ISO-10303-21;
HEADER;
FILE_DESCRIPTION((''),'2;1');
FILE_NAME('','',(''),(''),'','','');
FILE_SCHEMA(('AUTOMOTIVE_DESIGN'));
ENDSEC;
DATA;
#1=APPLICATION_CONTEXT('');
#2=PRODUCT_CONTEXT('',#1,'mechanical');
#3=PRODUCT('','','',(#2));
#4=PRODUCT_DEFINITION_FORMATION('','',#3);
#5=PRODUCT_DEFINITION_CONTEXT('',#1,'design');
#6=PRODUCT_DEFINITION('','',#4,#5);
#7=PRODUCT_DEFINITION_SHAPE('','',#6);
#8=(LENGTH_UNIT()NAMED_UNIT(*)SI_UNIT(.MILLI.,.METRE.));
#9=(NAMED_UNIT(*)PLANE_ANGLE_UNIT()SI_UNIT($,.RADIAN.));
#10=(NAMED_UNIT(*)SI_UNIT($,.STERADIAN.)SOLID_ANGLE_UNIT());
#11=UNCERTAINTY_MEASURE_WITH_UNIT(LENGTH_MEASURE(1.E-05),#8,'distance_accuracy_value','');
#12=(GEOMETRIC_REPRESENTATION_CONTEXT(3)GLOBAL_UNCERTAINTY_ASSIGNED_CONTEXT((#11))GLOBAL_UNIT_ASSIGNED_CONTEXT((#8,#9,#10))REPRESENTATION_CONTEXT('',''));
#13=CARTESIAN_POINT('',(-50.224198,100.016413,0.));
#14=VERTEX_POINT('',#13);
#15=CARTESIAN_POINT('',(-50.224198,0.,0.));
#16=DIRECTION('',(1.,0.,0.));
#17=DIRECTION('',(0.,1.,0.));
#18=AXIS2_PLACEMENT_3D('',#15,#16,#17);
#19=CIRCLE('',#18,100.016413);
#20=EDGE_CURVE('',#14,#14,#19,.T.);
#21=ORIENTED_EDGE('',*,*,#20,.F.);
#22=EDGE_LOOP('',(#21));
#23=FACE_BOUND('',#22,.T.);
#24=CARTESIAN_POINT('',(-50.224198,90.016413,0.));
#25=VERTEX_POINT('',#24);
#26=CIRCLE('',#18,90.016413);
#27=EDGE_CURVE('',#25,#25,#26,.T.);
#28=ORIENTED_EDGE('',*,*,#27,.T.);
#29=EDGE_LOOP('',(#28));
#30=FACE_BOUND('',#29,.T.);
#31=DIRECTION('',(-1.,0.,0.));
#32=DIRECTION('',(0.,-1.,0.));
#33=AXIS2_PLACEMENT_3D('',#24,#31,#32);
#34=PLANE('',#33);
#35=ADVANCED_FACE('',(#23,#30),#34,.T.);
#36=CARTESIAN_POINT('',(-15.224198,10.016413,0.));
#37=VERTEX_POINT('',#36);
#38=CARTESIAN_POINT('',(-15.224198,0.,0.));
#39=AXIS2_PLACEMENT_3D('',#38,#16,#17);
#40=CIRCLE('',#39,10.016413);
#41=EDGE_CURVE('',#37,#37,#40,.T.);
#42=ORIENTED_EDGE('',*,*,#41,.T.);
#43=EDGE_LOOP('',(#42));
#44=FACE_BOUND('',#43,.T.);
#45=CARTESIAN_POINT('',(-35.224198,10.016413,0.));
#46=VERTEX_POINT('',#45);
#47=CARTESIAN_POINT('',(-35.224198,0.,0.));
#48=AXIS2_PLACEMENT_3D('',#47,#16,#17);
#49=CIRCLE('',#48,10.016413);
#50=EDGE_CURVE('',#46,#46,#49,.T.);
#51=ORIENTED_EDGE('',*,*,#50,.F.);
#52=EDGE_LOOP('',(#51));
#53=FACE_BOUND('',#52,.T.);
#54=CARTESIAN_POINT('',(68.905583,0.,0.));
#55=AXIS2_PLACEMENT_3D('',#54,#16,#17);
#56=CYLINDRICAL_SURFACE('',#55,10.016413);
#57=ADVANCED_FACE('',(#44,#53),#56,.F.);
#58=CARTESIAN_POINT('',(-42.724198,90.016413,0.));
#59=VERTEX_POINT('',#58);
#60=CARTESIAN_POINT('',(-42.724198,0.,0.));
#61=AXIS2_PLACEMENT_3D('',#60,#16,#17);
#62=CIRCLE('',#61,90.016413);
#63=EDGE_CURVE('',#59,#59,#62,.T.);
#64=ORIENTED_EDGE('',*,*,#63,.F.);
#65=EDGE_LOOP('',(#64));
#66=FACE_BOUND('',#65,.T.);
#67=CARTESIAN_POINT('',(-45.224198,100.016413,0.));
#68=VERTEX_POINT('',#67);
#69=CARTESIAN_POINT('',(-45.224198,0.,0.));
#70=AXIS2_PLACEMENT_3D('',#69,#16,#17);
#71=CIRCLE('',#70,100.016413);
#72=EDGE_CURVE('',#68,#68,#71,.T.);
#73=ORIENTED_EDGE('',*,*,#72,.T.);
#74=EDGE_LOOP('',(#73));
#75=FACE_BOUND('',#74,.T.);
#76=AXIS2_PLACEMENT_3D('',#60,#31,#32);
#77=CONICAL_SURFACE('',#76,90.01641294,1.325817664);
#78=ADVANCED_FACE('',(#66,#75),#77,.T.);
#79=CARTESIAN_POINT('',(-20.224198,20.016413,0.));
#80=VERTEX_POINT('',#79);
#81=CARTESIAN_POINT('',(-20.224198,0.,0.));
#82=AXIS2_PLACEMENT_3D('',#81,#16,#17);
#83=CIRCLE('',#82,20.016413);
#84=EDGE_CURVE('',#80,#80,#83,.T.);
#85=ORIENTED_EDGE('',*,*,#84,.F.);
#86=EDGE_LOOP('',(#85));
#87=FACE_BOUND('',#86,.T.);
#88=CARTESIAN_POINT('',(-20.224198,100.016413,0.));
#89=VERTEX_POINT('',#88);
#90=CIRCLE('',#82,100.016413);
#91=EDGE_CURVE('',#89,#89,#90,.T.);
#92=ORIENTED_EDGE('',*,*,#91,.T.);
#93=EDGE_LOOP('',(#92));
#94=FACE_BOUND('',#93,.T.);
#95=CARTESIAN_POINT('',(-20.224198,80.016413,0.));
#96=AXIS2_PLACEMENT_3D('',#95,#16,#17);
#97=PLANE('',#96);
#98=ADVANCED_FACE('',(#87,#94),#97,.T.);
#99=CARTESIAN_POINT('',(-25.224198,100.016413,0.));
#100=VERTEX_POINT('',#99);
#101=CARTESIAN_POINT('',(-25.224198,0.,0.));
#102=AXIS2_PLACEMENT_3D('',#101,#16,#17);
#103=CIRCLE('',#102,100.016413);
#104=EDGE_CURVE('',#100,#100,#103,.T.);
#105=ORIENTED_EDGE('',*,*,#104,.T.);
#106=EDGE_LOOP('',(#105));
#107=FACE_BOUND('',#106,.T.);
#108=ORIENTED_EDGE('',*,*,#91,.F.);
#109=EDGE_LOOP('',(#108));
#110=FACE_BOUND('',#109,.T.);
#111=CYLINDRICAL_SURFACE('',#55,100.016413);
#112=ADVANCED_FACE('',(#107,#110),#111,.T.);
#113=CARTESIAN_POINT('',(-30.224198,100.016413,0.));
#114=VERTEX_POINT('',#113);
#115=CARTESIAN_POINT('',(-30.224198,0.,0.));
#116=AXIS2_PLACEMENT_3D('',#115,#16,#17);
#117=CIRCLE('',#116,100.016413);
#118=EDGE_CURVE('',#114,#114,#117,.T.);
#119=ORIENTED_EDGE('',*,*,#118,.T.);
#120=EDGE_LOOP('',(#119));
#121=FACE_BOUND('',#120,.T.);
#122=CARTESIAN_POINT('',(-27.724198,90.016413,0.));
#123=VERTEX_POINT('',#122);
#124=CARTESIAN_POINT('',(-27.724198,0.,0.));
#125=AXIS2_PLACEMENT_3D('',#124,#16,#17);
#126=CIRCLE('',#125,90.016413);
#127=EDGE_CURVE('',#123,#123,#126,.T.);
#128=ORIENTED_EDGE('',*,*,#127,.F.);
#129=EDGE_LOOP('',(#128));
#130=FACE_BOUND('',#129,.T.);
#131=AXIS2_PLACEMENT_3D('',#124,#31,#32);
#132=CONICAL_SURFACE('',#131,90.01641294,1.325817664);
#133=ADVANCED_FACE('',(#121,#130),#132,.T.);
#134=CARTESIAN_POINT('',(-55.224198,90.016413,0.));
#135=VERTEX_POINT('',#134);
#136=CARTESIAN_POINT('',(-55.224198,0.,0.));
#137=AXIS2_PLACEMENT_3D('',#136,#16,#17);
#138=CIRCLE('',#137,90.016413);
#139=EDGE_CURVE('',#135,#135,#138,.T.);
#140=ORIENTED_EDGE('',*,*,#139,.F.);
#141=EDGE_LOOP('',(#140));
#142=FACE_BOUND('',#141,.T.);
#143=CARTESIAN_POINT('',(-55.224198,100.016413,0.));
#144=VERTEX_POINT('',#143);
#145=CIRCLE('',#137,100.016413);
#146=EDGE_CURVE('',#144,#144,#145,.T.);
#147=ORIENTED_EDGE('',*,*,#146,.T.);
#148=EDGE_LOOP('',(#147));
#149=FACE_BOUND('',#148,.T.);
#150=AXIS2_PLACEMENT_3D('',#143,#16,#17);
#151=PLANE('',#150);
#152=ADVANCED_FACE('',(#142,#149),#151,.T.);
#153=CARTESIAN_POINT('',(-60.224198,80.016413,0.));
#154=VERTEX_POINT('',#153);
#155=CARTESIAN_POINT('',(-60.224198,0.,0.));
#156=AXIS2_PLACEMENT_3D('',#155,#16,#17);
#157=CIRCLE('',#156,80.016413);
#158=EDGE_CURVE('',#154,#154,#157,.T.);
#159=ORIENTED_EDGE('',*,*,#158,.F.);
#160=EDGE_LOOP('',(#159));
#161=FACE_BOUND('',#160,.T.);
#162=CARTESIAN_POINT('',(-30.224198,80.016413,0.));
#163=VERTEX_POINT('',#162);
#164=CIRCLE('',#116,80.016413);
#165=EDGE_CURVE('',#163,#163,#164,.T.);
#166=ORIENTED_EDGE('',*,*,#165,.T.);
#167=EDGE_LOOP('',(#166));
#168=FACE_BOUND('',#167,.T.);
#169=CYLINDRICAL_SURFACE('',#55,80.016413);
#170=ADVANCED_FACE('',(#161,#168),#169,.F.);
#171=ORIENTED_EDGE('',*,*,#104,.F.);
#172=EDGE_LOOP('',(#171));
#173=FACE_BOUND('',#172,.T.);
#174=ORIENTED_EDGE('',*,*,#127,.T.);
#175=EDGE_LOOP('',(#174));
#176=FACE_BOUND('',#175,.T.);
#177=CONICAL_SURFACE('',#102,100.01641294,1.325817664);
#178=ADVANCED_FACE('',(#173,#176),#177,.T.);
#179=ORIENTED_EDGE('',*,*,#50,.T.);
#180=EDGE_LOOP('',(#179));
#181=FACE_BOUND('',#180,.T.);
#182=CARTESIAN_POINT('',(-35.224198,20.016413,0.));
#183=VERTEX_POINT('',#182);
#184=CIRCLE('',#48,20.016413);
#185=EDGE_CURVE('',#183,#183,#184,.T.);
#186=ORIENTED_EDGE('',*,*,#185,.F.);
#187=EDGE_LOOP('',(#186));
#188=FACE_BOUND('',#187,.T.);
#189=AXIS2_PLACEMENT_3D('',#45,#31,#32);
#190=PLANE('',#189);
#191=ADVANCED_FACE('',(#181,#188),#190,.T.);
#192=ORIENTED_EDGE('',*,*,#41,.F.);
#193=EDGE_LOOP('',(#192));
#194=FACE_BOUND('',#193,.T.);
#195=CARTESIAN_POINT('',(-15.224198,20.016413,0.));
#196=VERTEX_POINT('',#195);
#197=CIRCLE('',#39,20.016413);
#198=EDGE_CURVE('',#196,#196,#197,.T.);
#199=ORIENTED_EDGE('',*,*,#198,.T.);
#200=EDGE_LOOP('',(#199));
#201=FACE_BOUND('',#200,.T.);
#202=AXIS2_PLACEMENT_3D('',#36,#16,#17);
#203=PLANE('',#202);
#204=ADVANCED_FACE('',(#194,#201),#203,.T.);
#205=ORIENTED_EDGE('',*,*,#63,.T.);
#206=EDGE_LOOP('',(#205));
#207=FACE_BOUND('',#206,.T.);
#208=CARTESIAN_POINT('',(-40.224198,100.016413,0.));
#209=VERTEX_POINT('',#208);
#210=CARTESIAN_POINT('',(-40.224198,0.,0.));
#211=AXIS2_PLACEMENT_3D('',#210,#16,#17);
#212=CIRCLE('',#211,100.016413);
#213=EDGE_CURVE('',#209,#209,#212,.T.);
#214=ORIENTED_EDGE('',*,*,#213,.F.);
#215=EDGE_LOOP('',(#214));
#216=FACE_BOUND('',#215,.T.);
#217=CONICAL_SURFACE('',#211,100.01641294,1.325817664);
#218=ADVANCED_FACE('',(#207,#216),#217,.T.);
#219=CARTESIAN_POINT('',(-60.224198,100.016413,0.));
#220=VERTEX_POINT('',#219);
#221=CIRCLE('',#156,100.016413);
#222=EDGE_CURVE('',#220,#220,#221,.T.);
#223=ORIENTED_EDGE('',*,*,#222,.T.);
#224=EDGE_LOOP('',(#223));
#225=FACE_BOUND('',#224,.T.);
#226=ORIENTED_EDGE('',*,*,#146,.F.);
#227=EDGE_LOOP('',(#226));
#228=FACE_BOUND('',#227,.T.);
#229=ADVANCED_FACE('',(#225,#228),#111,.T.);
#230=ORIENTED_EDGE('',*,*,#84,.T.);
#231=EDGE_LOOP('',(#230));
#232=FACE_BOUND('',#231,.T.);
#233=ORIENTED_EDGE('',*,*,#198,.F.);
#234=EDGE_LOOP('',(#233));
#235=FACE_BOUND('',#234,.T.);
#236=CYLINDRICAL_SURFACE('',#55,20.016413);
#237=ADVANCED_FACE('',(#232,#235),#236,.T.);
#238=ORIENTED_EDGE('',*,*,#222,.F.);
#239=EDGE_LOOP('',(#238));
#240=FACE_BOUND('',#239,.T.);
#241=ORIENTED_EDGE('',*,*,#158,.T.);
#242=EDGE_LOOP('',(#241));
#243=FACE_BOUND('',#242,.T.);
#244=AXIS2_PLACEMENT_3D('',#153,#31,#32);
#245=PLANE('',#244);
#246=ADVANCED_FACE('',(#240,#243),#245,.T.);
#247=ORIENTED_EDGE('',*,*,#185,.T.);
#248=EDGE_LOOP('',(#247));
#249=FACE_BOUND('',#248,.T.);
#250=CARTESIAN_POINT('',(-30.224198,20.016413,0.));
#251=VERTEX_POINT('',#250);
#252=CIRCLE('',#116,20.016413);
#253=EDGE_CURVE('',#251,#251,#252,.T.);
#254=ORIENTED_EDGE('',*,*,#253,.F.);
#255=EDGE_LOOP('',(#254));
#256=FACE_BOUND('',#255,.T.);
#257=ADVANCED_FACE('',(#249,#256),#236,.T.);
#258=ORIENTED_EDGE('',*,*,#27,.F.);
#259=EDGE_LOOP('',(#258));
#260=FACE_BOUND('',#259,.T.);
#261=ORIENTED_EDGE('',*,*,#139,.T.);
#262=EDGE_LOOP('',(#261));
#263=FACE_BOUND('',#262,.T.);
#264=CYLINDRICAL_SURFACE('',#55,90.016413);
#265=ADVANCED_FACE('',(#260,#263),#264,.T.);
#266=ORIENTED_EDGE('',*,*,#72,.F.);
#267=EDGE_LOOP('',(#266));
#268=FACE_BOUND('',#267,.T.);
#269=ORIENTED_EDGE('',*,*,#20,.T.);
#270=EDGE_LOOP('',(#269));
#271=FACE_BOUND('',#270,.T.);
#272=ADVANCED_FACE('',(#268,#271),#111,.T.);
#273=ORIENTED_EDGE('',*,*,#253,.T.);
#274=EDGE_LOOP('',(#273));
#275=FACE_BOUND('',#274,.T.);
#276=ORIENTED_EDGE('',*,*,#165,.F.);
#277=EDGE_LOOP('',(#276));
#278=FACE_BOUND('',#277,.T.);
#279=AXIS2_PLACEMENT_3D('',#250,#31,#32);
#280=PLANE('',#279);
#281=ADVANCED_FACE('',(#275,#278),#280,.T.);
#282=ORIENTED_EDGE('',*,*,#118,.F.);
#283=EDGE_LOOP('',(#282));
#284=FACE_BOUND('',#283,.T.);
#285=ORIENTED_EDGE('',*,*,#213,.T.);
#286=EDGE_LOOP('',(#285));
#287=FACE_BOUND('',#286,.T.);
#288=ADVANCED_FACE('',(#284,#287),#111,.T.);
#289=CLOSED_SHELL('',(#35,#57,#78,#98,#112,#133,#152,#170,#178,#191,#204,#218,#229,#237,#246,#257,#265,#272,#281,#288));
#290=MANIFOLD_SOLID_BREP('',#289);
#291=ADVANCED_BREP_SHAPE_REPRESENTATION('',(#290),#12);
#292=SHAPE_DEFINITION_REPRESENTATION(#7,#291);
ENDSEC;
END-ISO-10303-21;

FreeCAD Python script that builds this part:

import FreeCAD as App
import Part
import Sketcher

V = App.Vector

doc = App.newDocument("Part")
body = doc.addObject("PartDesign::Body", "Body")

# Sketch on XY plane
sketch1 = body.newObject("Sketcher::SketchObject", "Sketch")
sketch1.AttachmentSupport = (doc.getObject("XY_Plane"), [""])
sketch1.MapMode = "FlatFace"
sketch1.addGeometry([
    Part.LineSegment(V(-35.224198, 10.016413, 0), V(-15.224198, 10.016413, 0)),  # 0
    Part.LineSegment(V(-15.224198, 10.016413, 0), V(-15.224198, 20.016413, 0)),  # 1
    Part.LineSegment(V(-15.224198, 20.016413, 0), V(-20.224198, 20.016413, 0)),  # 2
    Part.LineSegment(V(-20.224198, 20.016413, 0), V(-20.224198, 100.016413, 0)),  # 3
    Part.LineSegment(V(-20.224198, 100.016413, 0), V(-25.224198, 100.016413, 0)),  # 4
    Part.LineSegment(V(-25.224198, 100.016413, 0), V(-27.724198, 90.016413, 0)),  # 5
    Part.LineSegment(V(-27.724198, 90.016413, 0), V(-30.224198, 100.016413, 0)),  # 6
    Part.LineSegment(V(-30.224198, 100.016413, 0), V(-40.224198, 100.016413, 0)),  # 7
    Part.LineSegment(V(-40.224198, 100.016413, 0), V(-42.724198, 90.016413, 0)),  # 8
    Part.LineSegment(V(-42.724198, 90.016413, 0), V(-45.224198, 100.016413, 0)),  # 9
    Part.LineSegment(V(-45.224198, 100.016413, 0), V(-50.224198, 100.016413, 0)),  # 10
    Part.LineSegment(V(-50.224198, 100.016413, 0), V(-50.224198, 90.016413, 0)),  # 11
    Part.LineSegment(V(-50.224198, 90.016413, 0), V(-55.224198, 90.016413, 0)),  # 12
    Part.LineSegment(V(-55.224198, 90.016413, 0), V(-55.224198, 100.016413, 0)),  # 13
    Part.LineSegment(V(-55.224198, 100.016413, 0), V(-60.224198, 100.016413, 0)),  # 14
    Part.LineSegment(V(-60.224198, 100.016413, 0), V(-60.224198, 80.016413, 0)),  # 15
    Part.LineSegment(V(-60.224198, 80.016413, 0), V(-30.224198, 80.016413, 0)),  # 16
    Part.LineSegment(V(-30.224198, 80.016413, 0), V(-30.224198, 20.016413, 0)),  # 17
    Part.LineSegment(V(-30.224198, 20.016413, 0), V(-35.224198, 20.016413, 0)),  # 18
    Part.LineSegment(V(-35.224198, 20.016413, 0), V(-35.224198, 10.016413, 0)),  # 19
], False)
sketch1.addConstraint([
    Sketcher.Constraint("Coincident", 0, 2, 1, 1),
    Sketcher.Constraint("Coincident", 1, 2, 2, 1),
    Sketcher.Constraint("Coincident", 2, 2, 3, 1),
    Sketcher.Constraint("Coincident", 3, 2, 4, 1),
    Sketcher.Constraint("Coincident", 4, 2, 5, 1),
    Sketcher.Constraint("Coincident", 5, 2, 6, 1),
    Sketcher.Constraint("Coincident", 6, 2, 7, 1),
    Sketcher.Constraint("Coincident", 7, 2, 8, 1),
    Sketcher.Constraint("Coincident", 8, 2, 9, 1),
    Sketcher.Constraint("Coincident", 9, 2, 10, 1),
    Sketcher.Constraint("Coincident", 10, 2, 11, 1),
    Sketcher.Constraint("Coincident", 11, 2, 12, 1),
    Sketcher.Constraint("Coincident", 12, 2, 13, 1),
    Sketcher.Constraint("Coincident", 13, 2, 14, 1),
    Sketcher.Constraint("Coincident", 14, 2, 15, 1),
    Sketcher.Constraint("Coincident", 15, 2, 16, 1),
    Sketcher.Constraint("Coincident", 16, 2, 17, 1),
    Sketcher.Constraint("Coincident", 17, 2, 18, 1),
    Sketcher.Constraint("Coincident", 18, 2, 19, 1),
    Sketcher.Constraint("Coincident", 19, 2, 0, 1),
    Sketcher.Constraint("Horizontal", 0),
    Sketcher.Constraint("Vertical", 1),
    Sketcher.Constraint("Horizontal", 2),
    Sketcher.Constraint("Vertical", 3),
    Sketcher.Constraint("Horizontal", 4),
    Sketcher.Constraint("Horizontal", 7),
    Sketcher.Constraint("Horizontal", 10),
    Sketcher.Constraint("Vertical", 11),
    Sketcher.Constraint("Horizontal", 12),
    Sketcher.Constraint("Vertical", 13),
    Sketcher.Constraint("Horizontal", 14),
    Sketcher.Constraint("Vertical", 15),
    Sketcher.Constraint("Horizontal", 16),
    Sketcher.Constraint("Vertical", 17),
    Sketcher.Constraint("Horizontal", 18),
    Sketcher.Constraint("Vertical", 19),
    Sketcher.Constraint("Parallel", 5, 8),
    Sketcher.Constraint("Parallel", 6, 9),
    Sketcher.Constraint("Horizontal", 4, 2, 6, 2),
    Sketcher.Constraint("Horizontal", 5, 2, 8, 2),
    Sketcher.Constraint("Horizontal", 7, 2, 9, 2),
    Sketcher.Constraint("Horizontal", 8, 2, 11, 2),
    Sketcher.Constraint("Horizontal", 10, 2, 13, 2),
    Sketcher.Constraint("Horizontal", 2, 2, 17, 2),
    Sketcher.Constraint("Vertical", 6, 2, 16, 2),
    Sketcher.Constraint("Equal", 2, 4),
    Sketcher.Constraint("Equal", 4, 10),
    Sketcher.Constraint("Equal", 10, 12),
    Sketcher.Constraint("Equal", 12, 14),
    Sketcher.Constraint("Equal", 14, 18),
    Sketcher.Constraint("Equal", 7, 1),
    Sketcher.Constraint("Equal", 1, 11),
    Sketcher.Constraint("Equal", 0, 15),
    Sketcher.Constraint("Equal", 5, 6),
    Sketcher.Constraint("DistanceX", 0, 1, 0, 2, 20.0),
    Sketcher.Constraint("DistanceX", 2, 2, 2, 1, 5.0),
    Sketcher.Constraint("DistanceX", 7, 2, 7, 1, 10.0),
    Sketcher.Constraint("DistanceY", 3, 1, 3, 2, 80.0),
    Sketcher.Constraint("DistanceX", 0, 2, -1, 1, 15.224198),
    Sketcher.Constraint("DistanceY", -1, 1, 0, 2, 10.016413),
])
revolution = body.newObject("PartDesign::Revolution", "Revolution")
revolution.Profile = sketch1
revolution.ReferenceAxis = (sketch1, ["H_Axis"])
revolution.Angle = 360

doc.recompute()
